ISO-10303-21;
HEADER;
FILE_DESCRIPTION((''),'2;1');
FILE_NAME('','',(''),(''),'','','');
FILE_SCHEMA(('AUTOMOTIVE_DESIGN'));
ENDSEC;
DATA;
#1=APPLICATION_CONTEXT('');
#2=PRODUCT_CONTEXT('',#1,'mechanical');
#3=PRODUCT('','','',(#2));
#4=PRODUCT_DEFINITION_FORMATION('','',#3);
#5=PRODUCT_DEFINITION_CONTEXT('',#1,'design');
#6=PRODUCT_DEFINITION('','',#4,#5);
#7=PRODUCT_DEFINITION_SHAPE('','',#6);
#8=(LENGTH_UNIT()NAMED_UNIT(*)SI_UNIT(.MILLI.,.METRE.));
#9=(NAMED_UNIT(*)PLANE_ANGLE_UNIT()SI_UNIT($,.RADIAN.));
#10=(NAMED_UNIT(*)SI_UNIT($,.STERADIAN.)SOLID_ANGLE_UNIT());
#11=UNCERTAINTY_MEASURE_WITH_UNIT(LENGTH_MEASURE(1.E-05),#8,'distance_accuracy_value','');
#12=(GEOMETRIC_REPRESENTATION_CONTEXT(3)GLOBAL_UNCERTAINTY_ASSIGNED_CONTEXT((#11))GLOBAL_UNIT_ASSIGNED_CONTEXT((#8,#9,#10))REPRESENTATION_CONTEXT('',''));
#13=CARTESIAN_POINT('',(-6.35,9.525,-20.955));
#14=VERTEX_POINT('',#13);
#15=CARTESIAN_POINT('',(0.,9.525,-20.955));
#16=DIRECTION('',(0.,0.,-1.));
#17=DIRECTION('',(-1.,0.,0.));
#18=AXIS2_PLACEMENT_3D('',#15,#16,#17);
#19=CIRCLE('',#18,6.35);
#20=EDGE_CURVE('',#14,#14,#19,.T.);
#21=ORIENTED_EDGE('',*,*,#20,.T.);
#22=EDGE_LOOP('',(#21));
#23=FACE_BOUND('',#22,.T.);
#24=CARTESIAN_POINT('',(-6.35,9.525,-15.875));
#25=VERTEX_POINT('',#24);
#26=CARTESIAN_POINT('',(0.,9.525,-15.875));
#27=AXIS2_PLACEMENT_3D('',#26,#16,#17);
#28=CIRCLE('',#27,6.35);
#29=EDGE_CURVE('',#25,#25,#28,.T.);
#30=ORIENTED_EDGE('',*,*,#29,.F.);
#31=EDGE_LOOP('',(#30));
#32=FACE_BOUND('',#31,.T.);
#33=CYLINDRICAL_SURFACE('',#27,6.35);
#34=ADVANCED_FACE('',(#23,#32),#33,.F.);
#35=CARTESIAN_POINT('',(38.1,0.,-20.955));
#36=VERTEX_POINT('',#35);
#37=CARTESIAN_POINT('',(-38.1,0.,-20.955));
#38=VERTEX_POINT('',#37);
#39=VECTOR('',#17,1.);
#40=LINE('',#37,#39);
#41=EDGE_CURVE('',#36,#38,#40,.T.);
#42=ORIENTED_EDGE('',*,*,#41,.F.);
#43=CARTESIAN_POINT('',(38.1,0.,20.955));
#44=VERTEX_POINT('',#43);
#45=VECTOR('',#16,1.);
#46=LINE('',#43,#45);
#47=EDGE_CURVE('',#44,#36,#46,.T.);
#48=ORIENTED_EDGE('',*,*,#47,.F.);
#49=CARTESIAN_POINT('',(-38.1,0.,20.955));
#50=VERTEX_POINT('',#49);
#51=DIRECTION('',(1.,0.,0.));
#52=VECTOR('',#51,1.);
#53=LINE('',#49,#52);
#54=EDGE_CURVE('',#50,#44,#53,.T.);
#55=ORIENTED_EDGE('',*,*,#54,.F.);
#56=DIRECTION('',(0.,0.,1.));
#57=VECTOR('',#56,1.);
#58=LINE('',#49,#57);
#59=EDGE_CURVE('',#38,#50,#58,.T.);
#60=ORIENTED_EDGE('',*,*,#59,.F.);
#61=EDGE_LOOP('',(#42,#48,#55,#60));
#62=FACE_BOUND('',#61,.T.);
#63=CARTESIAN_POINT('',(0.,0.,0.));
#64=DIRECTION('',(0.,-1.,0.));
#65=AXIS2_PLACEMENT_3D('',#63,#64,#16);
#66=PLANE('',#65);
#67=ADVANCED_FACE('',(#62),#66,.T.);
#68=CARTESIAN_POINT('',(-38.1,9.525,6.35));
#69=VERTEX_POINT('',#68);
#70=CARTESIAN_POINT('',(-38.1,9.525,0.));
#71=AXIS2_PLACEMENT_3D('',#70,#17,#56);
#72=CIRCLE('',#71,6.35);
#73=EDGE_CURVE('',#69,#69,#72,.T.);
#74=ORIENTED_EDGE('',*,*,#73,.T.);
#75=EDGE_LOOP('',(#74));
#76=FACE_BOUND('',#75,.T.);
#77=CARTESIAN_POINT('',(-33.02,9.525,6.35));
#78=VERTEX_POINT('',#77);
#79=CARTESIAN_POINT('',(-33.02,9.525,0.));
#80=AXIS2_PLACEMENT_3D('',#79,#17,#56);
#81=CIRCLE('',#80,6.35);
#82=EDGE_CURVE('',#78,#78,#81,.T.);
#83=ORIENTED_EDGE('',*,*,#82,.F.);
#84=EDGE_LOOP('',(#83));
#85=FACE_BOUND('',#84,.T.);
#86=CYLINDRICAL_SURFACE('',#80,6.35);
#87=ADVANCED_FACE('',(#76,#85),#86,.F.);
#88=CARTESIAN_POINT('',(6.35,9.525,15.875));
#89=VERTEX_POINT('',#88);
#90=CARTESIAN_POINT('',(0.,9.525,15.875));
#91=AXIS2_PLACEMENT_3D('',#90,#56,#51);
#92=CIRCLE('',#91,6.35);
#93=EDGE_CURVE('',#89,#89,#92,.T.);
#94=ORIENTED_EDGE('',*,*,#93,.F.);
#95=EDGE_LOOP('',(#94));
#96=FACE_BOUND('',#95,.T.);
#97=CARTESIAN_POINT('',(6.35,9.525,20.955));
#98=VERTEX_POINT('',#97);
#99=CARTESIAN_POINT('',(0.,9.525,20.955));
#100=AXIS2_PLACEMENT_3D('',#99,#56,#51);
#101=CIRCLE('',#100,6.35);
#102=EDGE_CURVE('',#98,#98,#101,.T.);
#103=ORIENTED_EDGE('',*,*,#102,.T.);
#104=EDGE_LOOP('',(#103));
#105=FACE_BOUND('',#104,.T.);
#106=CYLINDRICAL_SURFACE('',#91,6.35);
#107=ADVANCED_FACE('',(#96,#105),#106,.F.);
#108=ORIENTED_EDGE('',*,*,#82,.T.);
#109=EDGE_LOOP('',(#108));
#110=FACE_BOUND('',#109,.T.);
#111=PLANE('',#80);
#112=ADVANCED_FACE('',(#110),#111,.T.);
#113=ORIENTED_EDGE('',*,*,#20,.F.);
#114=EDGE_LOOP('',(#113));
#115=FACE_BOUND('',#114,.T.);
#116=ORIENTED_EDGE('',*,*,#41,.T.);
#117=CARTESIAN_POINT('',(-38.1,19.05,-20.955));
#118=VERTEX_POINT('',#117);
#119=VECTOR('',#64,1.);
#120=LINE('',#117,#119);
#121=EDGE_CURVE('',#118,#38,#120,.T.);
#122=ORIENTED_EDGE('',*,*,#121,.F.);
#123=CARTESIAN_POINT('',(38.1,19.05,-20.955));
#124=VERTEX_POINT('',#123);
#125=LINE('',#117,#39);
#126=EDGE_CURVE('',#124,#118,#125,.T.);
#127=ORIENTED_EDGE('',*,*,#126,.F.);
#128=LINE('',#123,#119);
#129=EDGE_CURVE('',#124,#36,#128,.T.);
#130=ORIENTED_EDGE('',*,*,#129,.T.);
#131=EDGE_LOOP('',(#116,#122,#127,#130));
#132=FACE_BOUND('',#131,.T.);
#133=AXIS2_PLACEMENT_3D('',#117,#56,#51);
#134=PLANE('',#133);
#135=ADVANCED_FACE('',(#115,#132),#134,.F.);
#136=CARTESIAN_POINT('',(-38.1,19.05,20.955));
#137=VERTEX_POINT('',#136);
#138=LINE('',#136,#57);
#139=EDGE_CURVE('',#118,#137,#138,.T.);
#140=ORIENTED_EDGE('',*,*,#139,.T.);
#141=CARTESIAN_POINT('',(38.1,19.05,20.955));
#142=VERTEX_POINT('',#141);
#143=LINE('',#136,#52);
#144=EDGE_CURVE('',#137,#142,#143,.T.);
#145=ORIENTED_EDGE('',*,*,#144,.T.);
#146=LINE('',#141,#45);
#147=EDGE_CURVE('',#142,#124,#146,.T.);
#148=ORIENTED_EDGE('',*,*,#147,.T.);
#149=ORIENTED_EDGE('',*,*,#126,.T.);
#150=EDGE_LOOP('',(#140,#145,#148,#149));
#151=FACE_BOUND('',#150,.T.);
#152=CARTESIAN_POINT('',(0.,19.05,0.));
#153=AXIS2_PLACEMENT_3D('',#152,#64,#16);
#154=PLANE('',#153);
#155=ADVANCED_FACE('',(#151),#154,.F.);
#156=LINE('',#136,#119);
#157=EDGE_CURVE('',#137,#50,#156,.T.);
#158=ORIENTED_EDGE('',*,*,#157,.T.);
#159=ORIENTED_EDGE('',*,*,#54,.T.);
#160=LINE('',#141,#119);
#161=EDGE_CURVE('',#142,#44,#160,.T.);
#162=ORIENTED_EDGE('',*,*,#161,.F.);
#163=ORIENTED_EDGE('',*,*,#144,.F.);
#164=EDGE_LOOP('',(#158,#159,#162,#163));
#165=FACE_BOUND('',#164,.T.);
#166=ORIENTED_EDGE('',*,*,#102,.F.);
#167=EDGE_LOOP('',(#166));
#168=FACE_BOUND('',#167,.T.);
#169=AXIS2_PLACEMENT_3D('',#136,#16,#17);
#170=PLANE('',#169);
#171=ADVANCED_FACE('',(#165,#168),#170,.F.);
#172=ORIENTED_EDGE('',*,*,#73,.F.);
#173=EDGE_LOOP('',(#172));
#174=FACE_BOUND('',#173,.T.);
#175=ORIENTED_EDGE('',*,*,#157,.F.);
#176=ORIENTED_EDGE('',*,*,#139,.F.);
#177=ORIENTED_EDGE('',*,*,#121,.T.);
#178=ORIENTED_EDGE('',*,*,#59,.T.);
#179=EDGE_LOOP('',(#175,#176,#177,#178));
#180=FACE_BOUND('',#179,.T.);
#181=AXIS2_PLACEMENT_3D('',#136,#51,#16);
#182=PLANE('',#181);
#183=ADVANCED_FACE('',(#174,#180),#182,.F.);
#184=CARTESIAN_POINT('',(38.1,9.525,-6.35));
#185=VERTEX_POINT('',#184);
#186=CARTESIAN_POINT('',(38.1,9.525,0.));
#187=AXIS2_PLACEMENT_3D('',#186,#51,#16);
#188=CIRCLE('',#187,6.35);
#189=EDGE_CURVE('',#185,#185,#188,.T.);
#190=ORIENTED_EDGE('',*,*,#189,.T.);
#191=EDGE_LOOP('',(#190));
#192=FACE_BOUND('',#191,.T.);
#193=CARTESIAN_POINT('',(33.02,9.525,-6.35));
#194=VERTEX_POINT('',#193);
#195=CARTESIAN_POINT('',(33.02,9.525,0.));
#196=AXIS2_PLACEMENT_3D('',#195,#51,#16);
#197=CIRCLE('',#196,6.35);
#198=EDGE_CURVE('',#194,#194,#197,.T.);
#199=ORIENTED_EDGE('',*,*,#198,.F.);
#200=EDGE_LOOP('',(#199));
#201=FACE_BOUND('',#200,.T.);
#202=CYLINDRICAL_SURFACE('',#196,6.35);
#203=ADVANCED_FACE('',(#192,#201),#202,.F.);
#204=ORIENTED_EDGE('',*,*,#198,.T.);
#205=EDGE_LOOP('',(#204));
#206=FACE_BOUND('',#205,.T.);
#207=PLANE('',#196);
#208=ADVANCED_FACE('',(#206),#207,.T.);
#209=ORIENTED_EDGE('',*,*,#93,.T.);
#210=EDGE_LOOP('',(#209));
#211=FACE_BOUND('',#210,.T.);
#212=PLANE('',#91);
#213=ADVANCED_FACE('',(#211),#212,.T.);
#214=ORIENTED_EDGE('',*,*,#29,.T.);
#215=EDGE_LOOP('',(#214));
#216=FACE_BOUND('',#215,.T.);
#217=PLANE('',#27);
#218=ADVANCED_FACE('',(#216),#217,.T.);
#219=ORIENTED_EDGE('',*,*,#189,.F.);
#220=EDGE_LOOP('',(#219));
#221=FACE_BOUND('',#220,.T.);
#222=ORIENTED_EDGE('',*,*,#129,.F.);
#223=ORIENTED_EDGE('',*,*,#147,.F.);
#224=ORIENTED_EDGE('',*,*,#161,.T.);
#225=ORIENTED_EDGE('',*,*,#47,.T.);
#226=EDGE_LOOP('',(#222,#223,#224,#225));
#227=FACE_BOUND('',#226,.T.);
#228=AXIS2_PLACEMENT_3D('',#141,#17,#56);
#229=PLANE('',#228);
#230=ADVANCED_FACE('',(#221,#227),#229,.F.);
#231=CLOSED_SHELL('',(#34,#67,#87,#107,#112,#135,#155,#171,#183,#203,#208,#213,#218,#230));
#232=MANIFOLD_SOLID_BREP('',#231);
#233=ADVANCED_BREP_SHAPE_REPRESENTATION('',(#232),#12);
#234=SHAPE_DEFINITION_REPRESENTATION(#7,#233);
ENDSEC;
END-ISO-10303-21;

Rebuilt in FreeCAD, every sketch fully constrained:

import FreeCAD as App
import Part
import Sketcher

V = App.Vector
Q = App.Units.Quantity


def add_polygon(sketch, points):
    """Adds a closed chain of lines whose ends are joined by coincident constraints."""
    first, n = sketch.GeometryCount, len(points)
    for a, b in zip(points, points[1:] + points[:1]):
        sketch.addGeometry(Part.LineSegment(App.Vector(*a, 0), App.Vector(*b, 0)), False)
    for i in range(n):
        sketch.addConstraint(Sketcher.Constraint("Coincident", first + i, 2, first + (i + 1) % n, 1))

doc = App.newDocument("Part")
body = doc.addObject("PartDesign::Body", "Body")

# Sketch on XZ plane
sketch1 = body.newObject("Sketcher::SketchObject", "Sketch")
sketch1.AttachmentSupport = (doc.getObject("XZ_Plane"), [""])
sketch1.MapMode = "FlatFace"
add_polygon(sketch1, [(-38, -21), (-38, 21), (38, 21), (38, -21)])  # lines 0-3
sketch1.addConstraint([
    Sketcher.Constraint("Vertical", 0),
    Sketcher.Constraint("Horizontal", 1),
    Sketcher.Constraint("Vertical", 2),
    Sketcher.Constraint("Horizontal", 3),
    Sketcher.Constraint("Symmetric", 0, 2, 2, 2, -1, 1),
    Sketcher.Constraint("DistanceX", 1, 1, 1, 2, Q("3 in")),
    Sketcher.Constraint("DistanceY", 0, 1, 0, 2, Q("1.65 in")),
])
pad1 = body.newObject("PartDesign::Pad", "Pad")
pad1.Profile = sketch1
pad1.Length = Q("0.75 in")
pad1.Reversed = True

# Sketch on YZ plane
sketch2 = body.newObject("Sketcher::SketchObject", "Sketch001")
sketch2.AttachmentSupport = (doc.getObject("YZ_Plane"), [""])
sketch2.MapMode = "FlatFace"
sketch2.AttachmentOffset = App.Placement(V(0, 0, 1.5 * 25.4), App.Rotation())
sketch2.addGeometry(Part.Circle(V(10, 0, 0), V(0, 0, 1), 6), False)
sketch2.addConstraint([
    Sketcher.Constraint("PointOnObject", 0, 3, -1),
    Sketcher.Constraint("Diameter", 0, Q("0.5 in")),
    Sketcher.Constraint("DistanceX", -1, 1, 0, 3, Q("0.375 in")),
])
pocket1 = body.newObject("PartDesign::Pocket", "Pocket")
pocket1.Profile = sketch2
pocket1.Length = Q("0.2 in")

# Sketch on XY plane
sketch3 = body.newObject("Sketcher::SketchObject", "Sketch002")
sketch3.AttachmentSupport = (doc.getObject("XY_Plane"), [""])
sketch3.MapMode = "FlatFace"
sketch3.AttachmentOffset = App.Placement(V(0, 0, 0.825 * 25.4), App.Rotation())
sketch3.addGeometry(Part.Circle(V(0, 10, 0), V(0, 0, 1), 6), False)
sketch3.addConstraint([
    Sketcher.Constraint("PointOnObject", 0, 3, -2),
    Sketcher.Constraint("Diameter", 0, Q("0.5 in")),
    Sketcher.Constraint("DistanceY", -1, 1, 0, 3, Q("0.375 in")),
])
pocket2 = body.newObject("PartDesign::Pocket", "Pocket001")
pocket2.Profile = sketch3
pocket2.Length = Q("0.2 in")

# Sketch on XY plane
sketch4 = body.newObject("Sketcher::SketchObject", "Sketch003")
sketch4.AttachmentSupport = (doc.getObject("XY_Plane"), [""])
sketch4.MapMode = "FlatFace"
sketch4.AttachmentOffset = App.Placement(V(0, 0, -0.625 * 25.4), App.Rotation())
sketch4.addGeometry(Part.Circle(V(0, 10, 0), V(0, 0, 1), 6), False)
sketch4.addConstraint([
    Sketcher.Constraint("PointOnObject", 0, 3, -2),
    Sketcher.Constraint("Diameter", 0, Q("0.5 in")),
    Sketcher.Constraint("DistanceY", -1, 1, 0, 3, Q("0.375 in")),
])
pocket3 = body.newObject("PartDesign::Pocket", "Pocket002")
pocket3.Profile = sketch4
pocket3.Length = Q("0.2 in")

# Sketch on YZ plane
sketch5 = body.newObject("Sketcher::SketchObject", "Sketch004")
sketch5.AttachmentSupport = (doc.getObject("YZ_Plane"), [""])
sketch5.MapMode = "FlatFace"
sketch5.AttachmentOffset = App.Placement(V(0, 0, -1.3 * 25.4), App.Rotation())
sketch5.addGeometry(Part.Circle(V(10, 0, 0), V(0, 0, 1), 6), False)
sketch5.addConstraint([
    Sketcher.Constraint("PointOnObject", 0, 3, -1),
    Sketcher.Constraint("Diameter", 0, Q("0.5 in")),
    Sketcher.Constraint("DistanceX", -1, 1, 0, 3, Q("0.375 in")),
])
pocket4 = body.newObject("PartDesign::Pocket", "Pocket003")
pocket4.Profile = sketch5
pocket4.Length = Q("0.2 in")

doc.recompute()
